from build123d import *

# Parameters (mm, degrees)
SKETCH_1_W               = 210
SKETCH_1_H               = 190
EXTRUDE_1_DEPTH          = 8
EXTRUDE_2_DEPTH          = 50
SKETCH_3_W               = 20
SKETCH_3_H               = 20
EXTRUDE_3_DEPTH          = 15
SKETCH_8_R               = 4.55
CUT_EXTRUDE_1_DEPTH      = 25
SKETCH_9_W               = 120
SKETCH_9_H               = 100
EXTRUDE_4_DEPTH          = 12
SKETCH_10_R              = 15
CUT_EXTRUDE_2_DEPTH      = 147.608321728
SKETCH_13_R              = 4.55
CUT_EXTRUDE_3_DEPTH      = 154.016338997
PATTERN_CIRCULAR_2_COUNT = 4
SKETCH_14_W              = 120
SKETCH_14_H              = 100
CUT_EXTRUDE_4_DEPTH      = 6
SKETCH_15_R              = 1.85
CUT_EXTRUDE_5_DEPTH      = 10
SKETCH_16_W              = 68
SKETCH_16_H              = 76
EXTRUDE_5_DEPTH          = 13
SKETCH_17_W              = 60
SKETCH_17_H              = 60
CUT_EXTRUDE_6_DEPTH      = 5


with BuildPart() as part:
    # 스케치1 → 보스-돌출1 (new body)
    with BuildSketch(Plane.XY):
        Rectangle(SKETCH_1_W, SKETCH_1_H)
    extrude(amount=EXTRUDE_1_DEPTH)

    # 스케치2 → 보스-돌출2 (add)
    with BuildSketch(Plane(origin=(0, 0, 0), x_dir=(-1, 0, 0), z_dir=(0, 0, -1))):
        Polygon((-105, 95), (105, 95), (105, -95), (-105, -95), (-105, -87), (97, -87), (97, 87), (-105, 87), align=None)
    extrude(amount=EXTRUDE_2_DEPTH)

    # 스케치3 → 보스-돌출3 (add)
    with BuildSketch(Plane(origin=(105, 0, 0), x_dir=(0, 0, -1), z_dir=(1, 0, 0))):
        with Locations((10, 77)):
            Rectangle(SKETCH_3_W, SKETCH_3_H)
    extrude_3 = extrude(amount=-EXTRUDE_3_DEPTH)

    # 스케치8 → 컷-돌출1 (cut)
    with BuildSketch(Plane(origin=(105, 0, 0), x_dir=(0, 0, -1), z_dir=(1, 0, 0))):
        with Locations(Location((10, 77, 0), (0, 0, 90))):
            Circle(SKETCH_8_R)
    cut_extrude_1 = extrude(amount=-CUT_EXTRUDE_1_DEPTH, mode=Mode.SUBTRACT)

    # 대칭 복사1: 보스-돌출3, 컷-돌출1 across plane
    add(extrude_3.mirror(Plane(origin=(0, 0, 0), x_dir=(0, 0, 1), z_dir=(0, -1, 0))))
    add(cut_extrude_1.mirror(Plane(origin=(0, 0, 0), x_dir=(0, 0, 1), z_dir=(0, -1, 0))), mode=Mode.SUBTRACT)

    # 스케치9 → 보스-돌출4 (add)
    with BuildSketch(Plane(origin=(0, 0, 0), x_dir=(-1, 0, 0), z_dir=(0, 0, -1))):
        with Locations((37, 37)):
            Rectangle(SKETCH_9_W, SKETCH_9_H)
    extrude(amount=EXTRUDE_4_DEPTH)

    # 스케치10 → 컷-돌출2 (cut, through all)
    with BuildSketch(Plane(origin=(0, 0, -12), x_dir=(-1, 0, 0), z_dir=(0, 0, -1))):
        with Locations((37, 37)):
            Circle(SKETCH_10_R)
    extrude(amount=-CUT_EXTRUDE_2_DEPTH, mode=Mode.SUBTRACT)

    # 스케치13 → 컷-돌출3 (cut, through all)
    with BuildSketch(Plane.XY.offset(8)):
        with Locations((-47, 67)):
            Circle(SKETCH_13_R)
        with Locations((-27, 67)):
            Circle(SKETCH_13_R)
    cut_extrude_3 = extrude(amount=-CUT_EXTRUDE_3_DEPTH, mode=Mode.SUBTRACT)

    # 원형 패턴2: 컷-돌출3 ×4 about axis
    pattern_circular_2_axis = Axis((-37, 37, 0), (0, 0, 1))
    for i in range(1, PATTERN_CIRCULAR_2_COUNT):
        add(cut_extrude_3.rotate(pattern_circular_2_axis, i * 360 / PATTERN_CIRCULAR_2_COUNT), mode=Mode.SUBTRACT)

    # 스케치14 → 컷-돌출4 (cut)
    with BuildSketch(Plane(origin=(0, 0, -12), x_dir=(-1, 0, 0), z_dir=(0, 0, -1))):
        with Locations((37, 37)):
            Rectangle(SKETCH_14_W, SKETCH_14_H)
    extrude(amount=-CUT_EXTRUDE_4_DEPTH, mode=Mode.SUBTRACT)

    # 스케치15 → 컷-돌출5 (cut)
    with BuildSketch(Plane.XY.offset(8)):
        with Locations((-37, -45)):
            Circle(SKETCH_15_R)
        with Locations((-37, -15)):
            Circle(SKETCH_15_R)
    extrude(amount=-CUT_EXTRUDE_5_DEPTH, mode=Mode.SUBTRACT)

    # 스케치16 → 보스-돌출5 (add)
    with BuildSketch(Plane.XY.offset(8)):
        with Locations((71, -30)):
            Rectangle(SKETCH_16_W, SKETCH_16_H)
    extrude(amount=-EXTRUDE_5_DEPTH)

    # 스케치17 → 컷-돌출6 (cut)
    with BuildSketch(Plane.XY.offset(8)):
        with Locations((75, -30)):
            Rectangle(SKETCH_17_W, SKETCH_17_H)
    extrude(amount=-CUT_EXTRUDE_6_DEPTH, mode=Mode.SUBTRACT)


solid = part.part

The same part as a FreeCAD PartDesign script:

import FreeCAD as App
import Part
import Sketcher
from FreeCAD import Vector
Q = App.Units.Quantity


def add_polygon(sketch, points):
    """Adds a closed chain of lines whose ends are joined by coincident constraints."""
    first, n = sketch.GeometryCount, len(points)
    for a, b in zip(points, points[1:] + points[:1]):
        sketch.addGeometry(Part.LineSegment(App.Vector(*a, 0), App.Vector(*b, 0)), False)
    for i in range(n):
        sketch.addConstraint(Sketcher.Constraint("Coincident", first + i, 2, first + (i + 1) % n, 1))

doc = App.newDocument("Part")
body = doc.addObject("PartDesign::Body", "Body")

sketch1 = body.newObject("Sketcher::SketchObject", "Sketch")
sketch1.AttachmentSupport = (doc.getObject("XY_Plane"), [""])
sketch1.MapMode = "FlatFace"
add_polygon(sketch1, [(-105, 95), (-105, -95), (105, -95), (105, 95)])
sketch1.addConstraint([
    Sketcher.Constraint("Vertical", 0),
    Sketcher.Constraint("Horizontal", 1),
    Sketcher.Constraint("Vertical", 2),
    Sketcher.Constraint("Horizontal", 3),
    Sketcher.Constraint("Symmetric", 0, 2, 2, 2, -1, 1),
    Sketcher.Constraint("DistanceX", 1, 1, 1, 2, Q("210 mm")),
    Sketcher.Constraint("DistanceY", 0, 2, 0, 1, Q("190 mm")),
])
pad1 = body.newObject("PartDesign::Pad", "Pad")
pad1.Profile = sketch1
pad1.Length = 8

sketch2 = body.newObject("Sketcher::SketchObject", "Sketch001")
sketch2.AttachmentSupport = (doc.getObject("XY_Plane"), [""])
sketch2.MapMode = "FlatFace"
add_polygon(sketch2, [(-105, 95), (105, 95), (105, 87), (-97, 87), (-97, -87), (105, -87), (105, -95), (-105, -95)])
sketch2.addConstraint([
    Sketcher.Constraint("Horizontal", 0),
    Sketcher.Constraint("Vertical", 1),
    Sketcher.Constraint("Horizontal", 2),
    Sketcher.Constraint("Vertical", 3),
    Sketcher.Constraint("Horizontal", 4),
    Sketcher.Constraint("Vertical", 5),
    Sketcher.Constraint("Horizontal", 6),
    Sketcher.Constraint("Vertical", 7),
    Sketcher.Constraint("Symmetric", 0, 2, 6, 2, -1, 1),
    Sketcher.Constraint("Symmetric", 1, 2, 4, 2, -1),
    Sketcher.Constraint("DistanceX", 0, 1, 0, 2, Q("210 mm")),
    Sketcher.Constraint("DistanceX", 2, 2, 2, 1, Q("202 mm")),
    Sketcher.Constraint("DistanceY", 1, 2, 1, 1, Q("8 mm")),
    Sketcher.Constraint("DistanceY", 3, 2, 3, 1, Q("174 mm")),
])
pad2 = body.newObject("PartDesign::Pad", "Pad001")
pad2.Profile = sketch2
pad2.Length = 50
pad2.Reversed = True

sketch3 = body.newObject("Sketcher::SketchObject", "Sketch002")
sketch3.AttachmentSupport = (doc.getObject("YZ_Plane"), [""])
sketch3.MapMode = "FlatFace"
sketch3.AttachmentOffset = App.Placement(Vector(0, 0, 105), App.Rotation())
add_polygon(sketch3, [(87, 0), (67, 0), (67, -20), (87, -20)])
sketch3.addConstraint([
    Sketcher.Constraint("Horizontal", 0),
    Sketcher.Constraint("Vertical", 1),
    Sketcher.Constraint("Horizontal", 2),
    Sketcher.Constraint("Vertical", 3),
    Sketcher.Constraint("PointOnObject", 0, 2, -1),
    Sketcher.Constraint("Equal", 2, 1),
    Sketcher.Constraint("DistanceX", 0, 2, 0, 1, Q("20 mm")),
    Sketcher.Constraint("DistanceX", -1, 1, 0, 2, Q("67 mm")),
])
pad3 = body.newObject("PartDesign::Pad", "Pad002")
pad3.Profile = sketch3
pad3.Length = 15
pad3.Reversed = True

sketch4 = body.newObject("Sketcher::SketchObject", "Sketch003")
sketch4.AttachmentSupport = (doc.getObject("YZ_Plane"), [""])
sketch4.MapMode = "FlatFace"
sketch4.AttachmentOffset = App.Placement(Vector(0, 0, 105), App.Rotation())
sketch4.addGeometry(Part.Circle(Vector(77, -10, 0), Vector(0, 0, 1), 4.5), False)
sketch4.addConstraint([
    Sketcher.Constraint("Diameter", 0, Q("9.1 mm")),
    Sketcher.Constraint("DistanceX", -1, 1, 0, 3, Q("77 mm")),
    Sketcher.Constraint("DistanceY", 0, 3, -1, 1, Q("10 mm")),
])
pocket1 = body.newObject("PartDesign::Pocket", "Pocket")
pocket1.Profile = sketch4
pocket1.Length = 25
doc.recompute()

mirrored = body.newObject("PartDesign::Mirrored", "Mirrored")
mirrored.Originals = [pad3, pocket1]
mirrored.MirrorPlane = (doc.getObject("XZ_Plane"), [""])
body.Tip = mirrored

sketch5 = body.newObject("Sketcher::SketchObject", "Sketch004")
sketch5.AttachmentSupport = (doc.getObject("XY_Plane"), [""])
sketch5.MapMode = "FlatFace"
add_polygon(sketch5, [(23, 87), (23, -13), (-97, -13), (-97, 87)])
sketch5.addConstraint([
    Sketcher.Constraint("Vertical", 0),
    Sketcher.Constraint("Horizontal", 1),
    Sketcher.Constraint("Vertical", 2),
    Sketcher.Constraint("Horizontal", 3),
    Sketcher.Constraint("DistanceX", 1, 2, 1, 1, Q("120 mm")),
    Sketcher.Constraint("DistanceY", 0, 2, 0, 1, Q("100 mm")),
    Sketcher.Constraint("DistanceX", -1, 1, 0, 2, Q("23 mm")),
    Sketcher.Constraint("DistanceY", 0, 2, -1, 1, Q("13 mm")),
])
pad4 = body.newObject("PartDesign::Pad", "Pad003")
pad4.Profile = sketch5
pad4.Length = 12
pad4.Reversed = True

sketch6 = body.newObject("Sketcher::SketchObject", "Sketch005")
sketch6.AttachmentSupport = (doc.getObject("XY_Plane"), [""])
sketch6.MapMode = "FlatFace"
sketch6.AttachmentOffset = App.Placement(Vector(0, 0, -12), App.Rotation())
sketch6.addGeometry(Part.Circle(Vector(-37, 37, 0), Vector(0, 0, 1), 15), False)
sketch6.addConstraint([
    Sketcher.Constraint("Diameter", 0, Q("30 mm")),
    Sketcher.Constraint("DistanceX", 0, 3, -1, 1, Q("37 mm")),
    Sketcher.Constraint("DistanceY", -1, 1, 0, 3, Q("37 mm")),
])
pocket2 = body.newObject("PartDesign::Pocket", "Pocket001")
pocket2.Profile = sketch6
pocket2.Type = "ThroughAll"
pocket2.Reversed = True

sketch7 = body.newObject("Sketcher::SketchObject", "Sketch006")
sketch7.AttachmentSupport = (doc.getObject("XY_Plane"), [""])
sketch7.MapMode = "FlatFace"
sketch7.AttachmentOffset = App.Placement(Vector(0, 0, 8), App.Rotation())
sketch7.addGeometry([
    Part.Circle(Vector(-47, 67, 0), Vector(0, 0, 1), 4.5),
    Part.Circle(Vector(-27, 67, 0), Vector(0, 0, 1), 4.5),
], False)
sketch7.addConstraint([
    Sketcher.Constraint("Equal", 0, 1),
    Sketcher.Constraint("Horizontal", 0, 3, 1, 3),
    Sketcher.Constraint("Diameter", 0, Q("9.1 mm")),
    Sketcher.Constraint("DistanceX", 0, 3, -1, 1, Q("47 mm")),
    Sketcher.Constraint("DistanceY", -1, 1, 0, 3, Q("67 mm")),
    Sketcher.Constraint("DistanceX", 1, 3, -1, 1, Q("27 mm")),
])
pocket3 = body.newObject("PartDesign::Pocket", "Pocket002")
pocket3.Profile = sketch7
pocket3.Type = "ThroughAll"
doc.recompute()

datumline = body.newObject("PartDesign::Line", "DatumLine")
datumline.Placement = App.Placement(Vector(-37, 37, 0), App.Rotation(Vector(0, 0, 1), Vector(0, 0, 1)))
polarpattern = body.newObject("PartDesign::PolarPattern", "PolarPattern")
polarpattern.Originals = [pocket3]
polarpattern.Axis = (datumline, [""])
polarpattern.Angle = 360
polarpattern.Occurrences = 4
body.Tip = polarpattern

sketch8 = body.newObject("Sketcher::SketchObject", "Sketch007")
sketch8.AttachmentSupport = (doc.getObject("XY_Plane"), [""])
sketch8.MapMode = "FlatFace"
sketch8.AttachmentOffset = App.Placement(Vector(0, 0, -12), App.Rotation())
add_polygon(sketch8, [(23, 87), (23, -13), (-97, -13), (-97, 87)])
sketch8.addConstraint([
    Sketcher.Constraint("Vertical", 0),
    Sketcher.Constraint("Horizontal", 1),
    Sketcher.Constraint("Vertical", 2),
    Sketcher.Constraint("Horizontal", 3),
    Sketcher.Constraint("DistanceX", 1, 2, 1, 1, Q("120 mm")),
    Sketcher.Constraint("DistanceY", 0, 2, 0, 1, Q("100 mm")),
    Sketcher.Constraint("DistanceX", -1, 1, 0, 2, Q("23 mm")),
    Sketcher.Constraint("DistanceY", 0, 2, -1, 1, Q("13 mm")),
])
pocket4 = body.newObject("PartDesign::Pocket", "Pocket003")
pocket4.Profile = sketch8
pocket4.Length = 6
pocket4.Reversed = True

sketch9 = body.newObject("Sketcher::SketchObject", "Sketch008")
sketch9.AttachmentSupport = (doc.getObject("XY_Plane"), [""])
sketch9.MapMode = "FlatFace"
sketch9.AttachmentOffset = App.Placement(Vector(0, 0, 8), App.Rotation())
sketch9.addGeometry([
    Part.Circle(Vector(-37, -45, 0), Vector(0, 0, 1), 1.9),
    Part.Circle(Vector(-37, -15, 0), Vector(0, 0, 1), 1.9),
], False)
sketch9.addConstraint([
    Sketcher.Constraint("Equal", 0, 1),
    Sketcher.Constraint("Vertical", 0, 3, 1, 3),
    Sketcher.Constraint("Diameter", 0, Q("3.7 mm")),
    Sketcher.Constraint("DistanceX", 0, 3, -1, 1, Q("37 mm")),
    Sketcher.Constraint("DistanceY", 0, 3, -1, 1, Q("45 mm")),
    Sketcher.Constraint("DistanceY", 1, 3, -1, 1, Q("15 mm")),
])
pocket5 = body.newObject("PartDesign::Pocket", "Pocket004")
pocket5.Profile = sketch9
pocket5.Length = 10

sketch10 = body.newObject("Sketcher::SketchObject", "Sketch009")
sketch10.AttachmentSupport = (doc.getObject("XY_Plane"), [""])
sketch10.MapMode = "FlatFace"
sketch10.AttachmentOffset = App.Placement(Vector(0, 0, 8), App.Rotation())
add_polygon(sketch10, [(37, 8), (37, -68), (105, -68), (105, 8)])
sketch10.addConstraint([
    Sketcher.Constraint("Vertical", 0),
    Sketcher.Constraint("Horizontal", 1),
    Sketcher.Constraint("Vertical", 2),
    Sketcher.Constraint("Horizontal", 3),
    Sketcher.Constraint("DistanceX", 1, 1, 1, 2, Q("68 mm")),
    Sketcher.Constraint("DistanceY", 0, 2, 0, 1, Q("76 mm")),
    Sketcher.Constraint("DistanceX", -1, 1, 0, 2, Q("37 mm")),
    Sketcher.Constraint("DistanceY", 0, 2, -1, 1, Q("68 mm")),
])
pad5 = body.newObject("PartDesign::Pad", "Pad004")
pad5.Profile = sketch10
pad5.Length = 13
pad5.Reversed = True

sketch11 = body.newObject("Sketcher::SketchObject", "Sketch010")
sketch11.AttachmentSupport = (doc.getObject("XY_Plane"), [""])
sketch11.MapMode = "FlatFace"
sketch11.AttachmentOffset = App.Placement(Vector(0, 0, 8), App.Rotation())
add_polygon(sketch11, [(45, 0), (45, -60), (105, -60), (105, 0)])
sketch11.addConstraint([
    Sketcher.Constraint("Vertical", 0),
    Sketcher.Constraint("Horizontal", 1),
    Sketcher.Constraint("Vertical", 2),
    Sketcher.Constraint("Horizontal", 3),
    Sketcher.Constraint("PointOnObject", 2, 2, -1),
    Sketcher.Constraint("Equal", 3, 0),
    Sketcher.Constraint("DistanceX", 1, 1, 1, 2, Q("60 mm")),
    Sketcher.Constraint("DistanceX", -1, 1, 0, 2, Q("45 mm")),
])
pocket6 = body.newObject("PartDesign::Pocket", "Pocket005")
pocket6.Profile = sketch11
pocket6.Length = 5

doc.recompute()
